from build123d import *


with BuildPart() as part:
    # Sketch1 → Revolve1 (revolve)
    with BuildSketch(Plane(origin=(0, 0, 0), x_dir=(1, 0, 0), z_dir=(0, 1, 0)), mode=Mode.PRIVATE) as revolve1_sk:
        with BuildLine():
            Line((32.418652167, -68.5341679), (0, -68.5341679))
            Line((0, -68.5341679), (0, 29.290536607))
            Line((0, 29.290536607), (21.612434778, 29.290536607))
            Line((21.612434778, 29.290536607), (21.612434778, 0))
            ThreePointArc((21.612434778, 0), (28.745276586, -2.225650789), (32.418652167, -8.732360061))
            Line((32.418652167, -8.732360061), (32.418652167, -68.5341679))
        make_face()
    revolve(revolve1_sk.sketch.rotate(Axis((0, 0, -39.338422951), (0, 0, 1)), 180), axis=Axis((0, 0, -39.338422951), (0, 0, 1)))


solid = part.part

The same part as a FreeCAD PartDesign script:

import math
import FreeCAD as App
import Part
import Sketcher

V = App.Vector

doc = App.newDocument("Part")
body = doc.addObject("PartDesign::Body", "Body")

sketch1 = doc.addObject("Sketcher::SketchObject", "Sketch")
body.addObject(sketch1)
sketch1.AttachmentSupport = (doc.XZ_Plane, [""])
sketch1.MapMode = "FlatFace"
sketch1.addGeometry([
    Part.LineSegment(V(0, 69, 0), V(32, 69, 0)),
    Part.LineSegment(V(32, 69, 0), V(32, 9, 0)),
    Part.ArcOfCircle(Part.Circle(V(22, 10, 0), V(0, 0, 1), 10), math.radians(-94), math.radians(-8)),
    Part.LineSegment(V(22, 0, 0), V(22, -29, 0)),
    Part.LineSegment(V(22, -29, 0), V(0, -29, 0)),
    Part.LineSegment(V(0, -29, 0), V(0, 69, 0)),
], False)
sketch1.addConstraint([
    Sketcher.Constraint("Coincident", 0, 2, 1, 1),
    Sketcher.Constraint("Coincident", 1, 2, 2, 2),
    Sketcher.Constraint("Coincident", 2, 1, 3, 1),
    Sketcher.Constraint("Coincident", 3, 2, 4, 1),
    Sketcher.Constraint("Coincident", 4, 2, 5, 1),
    Sketcher.Constraint("Coincident", 5, 2, 0, 1),
    Sketcher.Constraint("Horizontal", 0),
    Sketcher.Constraint("Vertical", 1),
    Sketcher.Constraint("Vertical", 3),
    Sketcher.Constraint("Horizontal", 4),
    Sketcher.Constraint("Vertical", 5),
    Sketcher.Constraint("PointOnObject", 2, 1, -1),
    Sketcher.Constraint("PointOnObject", 4, 2, -2),
    Sketcher.Constraint("Radius", 2, 10.143479),
    Sketcher.Constraint("DistanceY", 1, 2, 2, 3, 1.3828),
    Sketcher.Constraint("DistanceX", 0, 1, 0, 2, 32.418652),
    Sketcher.Constraint("DistanceX", 4, 2, 4, 1, 21.612435),
    Sketcher.Constraint("DistanceY", 1, 2, 1, 1, 59.801808),
    Sketcher.Constraint("DistanceY", 3, 2, 3, 1, 29.290537),
])
revolution = doc.addObject("PartDesign::Revolution", "Revolution")
body.addObject(revolution)
revolution.Profile = sketch1
revolution.ReferenceAxis = (sketch1, ["V_Axis"])
revolution.Angle = 360

doc.recompute()
